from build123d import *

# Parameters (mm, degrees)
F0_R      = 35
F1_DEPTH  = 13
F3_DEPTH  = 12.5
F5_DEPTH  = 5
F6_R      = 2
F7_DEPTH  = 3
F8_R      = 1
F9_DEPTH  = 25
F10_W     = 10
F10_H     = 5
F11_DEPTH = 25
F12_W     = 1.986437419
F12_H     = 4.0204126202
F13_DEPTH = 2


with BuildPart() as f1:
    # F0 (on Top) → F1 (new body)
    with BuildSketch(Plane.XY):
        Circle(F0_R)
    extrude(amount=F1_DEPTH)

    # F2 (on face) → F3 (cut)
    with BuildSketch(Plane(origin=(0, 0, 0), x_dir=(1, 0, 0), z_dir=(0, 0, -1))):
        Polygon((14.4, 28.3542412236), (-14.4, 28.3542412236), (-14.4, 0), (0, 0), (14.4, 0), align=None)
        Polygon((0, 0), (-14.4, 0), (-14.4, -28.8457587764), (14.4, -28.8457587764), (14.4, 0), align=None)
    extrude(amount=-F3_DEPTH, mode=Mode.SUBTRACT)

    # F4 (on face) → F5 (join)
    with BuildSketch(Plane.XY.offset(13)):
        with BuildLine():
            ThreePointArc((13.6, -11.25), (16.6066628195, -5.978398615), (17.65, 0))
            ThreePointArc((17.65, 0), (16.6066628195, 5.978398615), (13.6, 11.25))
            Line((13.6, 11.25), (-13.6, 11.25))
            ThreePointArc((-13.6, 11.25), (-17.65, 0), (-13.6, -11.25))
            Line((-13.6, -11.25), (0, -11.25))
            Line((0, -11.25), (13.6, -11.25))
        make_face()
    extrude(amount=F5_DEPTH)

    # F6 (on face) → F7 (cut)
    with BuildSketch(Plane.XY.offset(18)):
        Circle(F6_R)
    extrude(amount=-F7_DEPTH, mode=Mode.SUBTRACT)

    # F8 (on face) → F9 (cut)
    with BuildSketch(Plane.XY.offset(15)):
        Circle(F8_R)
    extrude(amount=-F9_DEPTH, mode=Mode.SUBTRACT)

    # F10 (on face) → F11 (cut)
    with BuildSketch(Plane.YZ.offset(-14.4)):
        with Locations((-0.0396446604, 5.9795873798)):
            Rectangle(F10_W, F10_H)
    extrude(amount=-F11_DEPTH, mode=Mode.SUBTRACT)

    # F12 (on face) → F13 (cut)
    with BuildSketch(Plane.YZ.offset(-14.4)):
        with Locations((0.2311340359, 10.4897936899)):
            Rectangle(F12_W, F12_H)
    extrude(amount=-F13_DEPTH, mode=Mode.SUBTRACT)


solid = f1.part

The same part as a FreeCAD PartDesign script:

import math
import FreeCAD as App
import Part
import Sketcher

V = App.Vector
Q = App.Units.Quantity


def add_polygon(sketch, points):
    """Adds a closed chain of lines whose ends are joined by coincident constraints."""
    first, n = sketch.GeometryCount, len(points)
    for a, b in zip(points, points[1:] + points[:1]):
        sketch.addGeometry(Part.LineSegment(App.Vector(*a, 0), App.Vector(*b, 0)), False)
    for i in range(n):
        sketch.addConstraint(Sketcher.Constraint("Coincident", first + i, 2, first + (i + 1) % n, 1))

doc = App.newDocument("Part")
body = doc.addObject("PartDesign::Body", "Body")

sketch1 = doc.addObject("Sketcher::SketchObject", "Sketch")
body.addObject(sketch1)
sketch1.AttachmentSupport = (doc.XY_Plane, [""])
sketch1.MapMode = "FlatFace"
sketch1.addGeometry(Part.Circle(V(0, 0, 0), V(0, 0, 1), 35), False)
sketch1.addConstraint(Sketcher.Constraint("Coincident", 0, 3, -1, 1))
sketch1.addConstraint(Sketcher.Constraint("Diameter", 0, Q("70 mm")))
pad1 = doc.addObject("PartDesign::Pad", "Pad")
body.addObject(pad1)
pad1.Profile = sketch1
pad1.Length = 13

sketch2 = doc.addObject("Sketcher::SketchObject", "Sketch001")
body.addObject(sketch2)
sketch2.AttachmentSupport = (doc.XY_Plane, [""])
sketch2.MapMode = "FlatFace"
add_polygon(sketch2, [(14, -28), (-14, -28), (-14, 29), (14, 29)])
sketch2.addConstraint(Sketcher.Constraint("Horizontal", 0))
sketch2.addConstraint(Sketcher.Constraint("Vertical", 1))
sketch2.addConstraint(Sketcher.Constraint("Horizontal", 2))
sketch2.addConstraint(Sketcher.Constraint("Vertical", 3))
sketch2.addConstraint(Sketcher.Constraint("DistanceX", 0, 2, 0, 1, Q("28.8 mm")))
sketch2.addConstraint(Sketcher.Constraint("DistanceY", 1, 1, 1, 2, Q("57.2 mm")))
sketch2.addConstraint(Sketcher.Constraint("DistanceX", 0, 2, -1, 1, Q("14.4 mm")))
sketch2.addConstraint(Sketcher.Constraint("DistanceY", 0, 2, -1, 1, Q("28.354241 mm")))
pocket1 = doc.addObject("PartDesign::Pocket", "Pocket")
body.addObject(pocket1)
pocket1.Profile = sketch2
pocket1.Length = 12.5
pocket1.Reversed = True

sketch3 = doc.addObject("Sketcher::SketchObject", "Sketch002")
body.addObject(sketch3)
sketch3.AttachmentSupport = (doc.XY_Plane, [""])
sketch3.MapMode = "FlatFace"
sketch3.AttachmentOffset = App.Placement(V(0, 0, 13), App.Rotation())
sketch3.addGeometry(Part.ArcOfCircle(Part.Circle(V(0, 0, 0), V(0, 0, 1), 18), math.radians(-40), math.radians(0)), False)
sketch3.addGeometry(Part.ArcOfCircle(Part.Circle(V(0, 0, 0), V(0, 0, 1), 18), math.radians(0), math.radians(40)), False)
sketch3.addGeometry(Part.LineSegment(V(14, 11, 0), V(-14, 11, 0)), False)
sketch3.addGeometry(Part.ArcOfCircle(Part.Circle(V(0, 0, 0), V(0, 0, 1), 18), math.radians(140), math.radians(220)), False)
sketch3.addGeometry(Part.LineSegment(V(-14, -11, 0), V(14, -11, 0)), False)
sketch3.addConstraint(Sketcher.Constraint("Tangent", 0, 2, 1, 1))
sketch3.addConstraint(Sketcher.Constraint("Coincident", 1, 2, 2, 1))
sketch3.addConstraint(Sketcher.Constraint("Coincident", 2, 2, 3, 1))
sketch3.addConstraint(Sketcher.Constraint("Coincident", 3, 2, 4, 1))
sketch3.addConstraint(Sketcher.Constraint("Coincident", 4, 2, 0, 1))
sketch3.addConstraint(Sketcher.Constraint("Horizontal", 2))
sketch3.addConstraint(Sketcher.Constraint("Horizontal", 4))
sketch3.addConstraint(Sketcher.Constraint("Coincident", 0, 3, -1, 1))
sketch3.addConstraint(Sketcher.Constraint("Coincident", 3, 3, -1, 1))
sketch3.addConstraint(Sketcher.Constraint("Equal", 0, 1))
sketch3.addConstraint(Sketcher.Constraint("Equal", 1, 3))
sketch3.addConstraint(Sketcher.Constraint("PointOnObject", 0, 2, -1))
sketch3.addConstraint(Sketcher.Constraint("Vertical", 2, 2, 3, 2))
sketch3.addConstraint(Sketcher.Constraint("Radius", 0, Q("17.65 mm")))
sketch3.addConstraint(Sketcher.Constraint("DistanceX", 2, 2, 2, 1, Q("27.2 mm")))
pad2 = doc.addObject("PartDesign::Pad", "Pad001")
body.addObject(pad2)
pad2.Profile = sketch3
pad2.Length = 5

sketch4 = doc.addObject("Sketcher::SketchObject", "Sketch003")
body.addObject(sketch4)
sketch4.AttachmentSupport = (doc.XY_Plane, [""])
sketch4.MapMode = "FlatFace"
sketch4.AttachmentOffset = App.Placement(V(0, 0, 18), App.Rotation())
sketch4.addGeometry(Part.Circle(V(0, 0, 0), V(0, 0, 1), 2), False)
sketch4.addConstraint(Sketcher.Constraint("Coincident", 0, 3, -1, 1))
sketch4.addConstraint(Sketcher.Constraint("Diameter", 0, Q("4 mm")))
pocket2 = doc.addObject("PartDesign::Pocket", "Pocket001")
body.addObject(pocket2)
pocket2.Profile = sketch4
pocket2.Length = 3

sketch5 = doc.addObject("Sketcher::SketchObject", "Sketch004")
body.addObject(sketch5)
sketch5.AttachmentSupport = (doc.XY_Plane, [""])
sketch5.MapMode = "FlatFace"
sketch5.AttachmentOffset = App.Placement(V(0, 0, 15), App.Rotation())
sketch5.addGeometry(Part.Circle(V(0, 0, 0), V(0, 0, 1), 1), False)
sketch5.addConstraint(Sketcher.Constraint("Coincident", 0, 3, -1, 1))
sketch5.addConstraint(Sketcher.Constraint("Diameter", 0, Q("2 mm")))
pocket3 = doc.addObject("PartDesign::Pocket", "Pocket002")
body.addObject(pocket3)
pocket3.Profile = sketch5
pocket3.Length = 25

sketch6 = doc.addObject("Sketcher::SketchObject", "Sketch005")
body.addObject(sketch6)
sketch6.AttachmentSupport = (doc.YZ_Plane, [""])
sketch6.MapMode = "FlatFace"
sketch6.AttachmentOffset = App.Placement(V(0, 0, -14.4), App.Rotation())
add_polygon(sketch6, [(-5, 8), (-5, 3), (5, 3), (5, 8)])
sketch6.addConstraint(Sketcher.Constraint("Vertical", 0))
sketch6.addConstraint(Sketcher.Constraint("Horizontal", 1))
sketch6.addConstraint(Sketcher.Constraint("Vertical", 2))
sketch6.addConstraint(Sketcher.Constraint("Horizontal", 3))
sketch6.addConstraint(Sketcher.Constraint("DistanceX", 1, 1, 1, 2, Q("10 mm")))
sketch6.addConstraint(Sketcher.Constraint("DistanceY", 0, 2, 0, 1, Q("5 mm")))
sketch6.addConstraint(Sketcher.Constraint("DistanceX", 0, 2, -1, 1, Q("5.039645 mm")))
sketch6.addConstraint(Sketcher.Constraint("DistanceY", -1, 1, 0, 2, Q("3.479587 mm")))
pocket4 = doc.addObject("PartDesign::Pocket", "Pocket003")
body.addObject(pocket4)
pocket4.Profile = sketch6
pocket4.Length = 25

sketch7 = doc.addObject("Sketcher::SketchObject", "Sketch006")
body.addObject(sketch7)
sketch7.AttachmentSupport = (doc.YZ_Plane, [""])
sketch7.MapMode = "FlatFace"
sketch7.AttachmentOffset = App.Placement(V(0, 0, -14.4), App.Rotation())
add_polygon(sketch7, [(-0.8, 12.5), (-0.8, 8.5), (1.2, 8.5), (1.2, 12.5)])
sketch7.addConstraint(Sketcher.Constraint("Vertical", 0))
sketch7.addConstraint(Sketcher.Constraint("Horizontal", 1))
sketch7.addConstraint(Sketcher.Constraint("Vertical", 2))
sketch7.addConstraint(Sketcher.Constraint("Horizontal", 3))
sketch7.addConstraint(Sketcher.Constraint("DistanceY", -1, 1, 2, 2, Q("12.5 mm")))
sketch7.addConstraint(Sketcher.Constraint("DistanceX", 1, 1, 1, 2, Q("1.986437 mm")))
sketch7.addConstraint(Sketcher.Constraint("DistanceY", 0, 2, 0, 1, Q("4.020413 mm")))
sketch7.addConstraint(Sketcher.Constraint("DistanceX", 0, 2, -1, 1, Q("0.762085 mm")))
pocket5 = doc.addObject("PartDesign::Pocket", "Pocket004")
body.addObject(pocket5)
pocket5.Profile = sketch7
pocket5.Length = 2

doc.recompute()
